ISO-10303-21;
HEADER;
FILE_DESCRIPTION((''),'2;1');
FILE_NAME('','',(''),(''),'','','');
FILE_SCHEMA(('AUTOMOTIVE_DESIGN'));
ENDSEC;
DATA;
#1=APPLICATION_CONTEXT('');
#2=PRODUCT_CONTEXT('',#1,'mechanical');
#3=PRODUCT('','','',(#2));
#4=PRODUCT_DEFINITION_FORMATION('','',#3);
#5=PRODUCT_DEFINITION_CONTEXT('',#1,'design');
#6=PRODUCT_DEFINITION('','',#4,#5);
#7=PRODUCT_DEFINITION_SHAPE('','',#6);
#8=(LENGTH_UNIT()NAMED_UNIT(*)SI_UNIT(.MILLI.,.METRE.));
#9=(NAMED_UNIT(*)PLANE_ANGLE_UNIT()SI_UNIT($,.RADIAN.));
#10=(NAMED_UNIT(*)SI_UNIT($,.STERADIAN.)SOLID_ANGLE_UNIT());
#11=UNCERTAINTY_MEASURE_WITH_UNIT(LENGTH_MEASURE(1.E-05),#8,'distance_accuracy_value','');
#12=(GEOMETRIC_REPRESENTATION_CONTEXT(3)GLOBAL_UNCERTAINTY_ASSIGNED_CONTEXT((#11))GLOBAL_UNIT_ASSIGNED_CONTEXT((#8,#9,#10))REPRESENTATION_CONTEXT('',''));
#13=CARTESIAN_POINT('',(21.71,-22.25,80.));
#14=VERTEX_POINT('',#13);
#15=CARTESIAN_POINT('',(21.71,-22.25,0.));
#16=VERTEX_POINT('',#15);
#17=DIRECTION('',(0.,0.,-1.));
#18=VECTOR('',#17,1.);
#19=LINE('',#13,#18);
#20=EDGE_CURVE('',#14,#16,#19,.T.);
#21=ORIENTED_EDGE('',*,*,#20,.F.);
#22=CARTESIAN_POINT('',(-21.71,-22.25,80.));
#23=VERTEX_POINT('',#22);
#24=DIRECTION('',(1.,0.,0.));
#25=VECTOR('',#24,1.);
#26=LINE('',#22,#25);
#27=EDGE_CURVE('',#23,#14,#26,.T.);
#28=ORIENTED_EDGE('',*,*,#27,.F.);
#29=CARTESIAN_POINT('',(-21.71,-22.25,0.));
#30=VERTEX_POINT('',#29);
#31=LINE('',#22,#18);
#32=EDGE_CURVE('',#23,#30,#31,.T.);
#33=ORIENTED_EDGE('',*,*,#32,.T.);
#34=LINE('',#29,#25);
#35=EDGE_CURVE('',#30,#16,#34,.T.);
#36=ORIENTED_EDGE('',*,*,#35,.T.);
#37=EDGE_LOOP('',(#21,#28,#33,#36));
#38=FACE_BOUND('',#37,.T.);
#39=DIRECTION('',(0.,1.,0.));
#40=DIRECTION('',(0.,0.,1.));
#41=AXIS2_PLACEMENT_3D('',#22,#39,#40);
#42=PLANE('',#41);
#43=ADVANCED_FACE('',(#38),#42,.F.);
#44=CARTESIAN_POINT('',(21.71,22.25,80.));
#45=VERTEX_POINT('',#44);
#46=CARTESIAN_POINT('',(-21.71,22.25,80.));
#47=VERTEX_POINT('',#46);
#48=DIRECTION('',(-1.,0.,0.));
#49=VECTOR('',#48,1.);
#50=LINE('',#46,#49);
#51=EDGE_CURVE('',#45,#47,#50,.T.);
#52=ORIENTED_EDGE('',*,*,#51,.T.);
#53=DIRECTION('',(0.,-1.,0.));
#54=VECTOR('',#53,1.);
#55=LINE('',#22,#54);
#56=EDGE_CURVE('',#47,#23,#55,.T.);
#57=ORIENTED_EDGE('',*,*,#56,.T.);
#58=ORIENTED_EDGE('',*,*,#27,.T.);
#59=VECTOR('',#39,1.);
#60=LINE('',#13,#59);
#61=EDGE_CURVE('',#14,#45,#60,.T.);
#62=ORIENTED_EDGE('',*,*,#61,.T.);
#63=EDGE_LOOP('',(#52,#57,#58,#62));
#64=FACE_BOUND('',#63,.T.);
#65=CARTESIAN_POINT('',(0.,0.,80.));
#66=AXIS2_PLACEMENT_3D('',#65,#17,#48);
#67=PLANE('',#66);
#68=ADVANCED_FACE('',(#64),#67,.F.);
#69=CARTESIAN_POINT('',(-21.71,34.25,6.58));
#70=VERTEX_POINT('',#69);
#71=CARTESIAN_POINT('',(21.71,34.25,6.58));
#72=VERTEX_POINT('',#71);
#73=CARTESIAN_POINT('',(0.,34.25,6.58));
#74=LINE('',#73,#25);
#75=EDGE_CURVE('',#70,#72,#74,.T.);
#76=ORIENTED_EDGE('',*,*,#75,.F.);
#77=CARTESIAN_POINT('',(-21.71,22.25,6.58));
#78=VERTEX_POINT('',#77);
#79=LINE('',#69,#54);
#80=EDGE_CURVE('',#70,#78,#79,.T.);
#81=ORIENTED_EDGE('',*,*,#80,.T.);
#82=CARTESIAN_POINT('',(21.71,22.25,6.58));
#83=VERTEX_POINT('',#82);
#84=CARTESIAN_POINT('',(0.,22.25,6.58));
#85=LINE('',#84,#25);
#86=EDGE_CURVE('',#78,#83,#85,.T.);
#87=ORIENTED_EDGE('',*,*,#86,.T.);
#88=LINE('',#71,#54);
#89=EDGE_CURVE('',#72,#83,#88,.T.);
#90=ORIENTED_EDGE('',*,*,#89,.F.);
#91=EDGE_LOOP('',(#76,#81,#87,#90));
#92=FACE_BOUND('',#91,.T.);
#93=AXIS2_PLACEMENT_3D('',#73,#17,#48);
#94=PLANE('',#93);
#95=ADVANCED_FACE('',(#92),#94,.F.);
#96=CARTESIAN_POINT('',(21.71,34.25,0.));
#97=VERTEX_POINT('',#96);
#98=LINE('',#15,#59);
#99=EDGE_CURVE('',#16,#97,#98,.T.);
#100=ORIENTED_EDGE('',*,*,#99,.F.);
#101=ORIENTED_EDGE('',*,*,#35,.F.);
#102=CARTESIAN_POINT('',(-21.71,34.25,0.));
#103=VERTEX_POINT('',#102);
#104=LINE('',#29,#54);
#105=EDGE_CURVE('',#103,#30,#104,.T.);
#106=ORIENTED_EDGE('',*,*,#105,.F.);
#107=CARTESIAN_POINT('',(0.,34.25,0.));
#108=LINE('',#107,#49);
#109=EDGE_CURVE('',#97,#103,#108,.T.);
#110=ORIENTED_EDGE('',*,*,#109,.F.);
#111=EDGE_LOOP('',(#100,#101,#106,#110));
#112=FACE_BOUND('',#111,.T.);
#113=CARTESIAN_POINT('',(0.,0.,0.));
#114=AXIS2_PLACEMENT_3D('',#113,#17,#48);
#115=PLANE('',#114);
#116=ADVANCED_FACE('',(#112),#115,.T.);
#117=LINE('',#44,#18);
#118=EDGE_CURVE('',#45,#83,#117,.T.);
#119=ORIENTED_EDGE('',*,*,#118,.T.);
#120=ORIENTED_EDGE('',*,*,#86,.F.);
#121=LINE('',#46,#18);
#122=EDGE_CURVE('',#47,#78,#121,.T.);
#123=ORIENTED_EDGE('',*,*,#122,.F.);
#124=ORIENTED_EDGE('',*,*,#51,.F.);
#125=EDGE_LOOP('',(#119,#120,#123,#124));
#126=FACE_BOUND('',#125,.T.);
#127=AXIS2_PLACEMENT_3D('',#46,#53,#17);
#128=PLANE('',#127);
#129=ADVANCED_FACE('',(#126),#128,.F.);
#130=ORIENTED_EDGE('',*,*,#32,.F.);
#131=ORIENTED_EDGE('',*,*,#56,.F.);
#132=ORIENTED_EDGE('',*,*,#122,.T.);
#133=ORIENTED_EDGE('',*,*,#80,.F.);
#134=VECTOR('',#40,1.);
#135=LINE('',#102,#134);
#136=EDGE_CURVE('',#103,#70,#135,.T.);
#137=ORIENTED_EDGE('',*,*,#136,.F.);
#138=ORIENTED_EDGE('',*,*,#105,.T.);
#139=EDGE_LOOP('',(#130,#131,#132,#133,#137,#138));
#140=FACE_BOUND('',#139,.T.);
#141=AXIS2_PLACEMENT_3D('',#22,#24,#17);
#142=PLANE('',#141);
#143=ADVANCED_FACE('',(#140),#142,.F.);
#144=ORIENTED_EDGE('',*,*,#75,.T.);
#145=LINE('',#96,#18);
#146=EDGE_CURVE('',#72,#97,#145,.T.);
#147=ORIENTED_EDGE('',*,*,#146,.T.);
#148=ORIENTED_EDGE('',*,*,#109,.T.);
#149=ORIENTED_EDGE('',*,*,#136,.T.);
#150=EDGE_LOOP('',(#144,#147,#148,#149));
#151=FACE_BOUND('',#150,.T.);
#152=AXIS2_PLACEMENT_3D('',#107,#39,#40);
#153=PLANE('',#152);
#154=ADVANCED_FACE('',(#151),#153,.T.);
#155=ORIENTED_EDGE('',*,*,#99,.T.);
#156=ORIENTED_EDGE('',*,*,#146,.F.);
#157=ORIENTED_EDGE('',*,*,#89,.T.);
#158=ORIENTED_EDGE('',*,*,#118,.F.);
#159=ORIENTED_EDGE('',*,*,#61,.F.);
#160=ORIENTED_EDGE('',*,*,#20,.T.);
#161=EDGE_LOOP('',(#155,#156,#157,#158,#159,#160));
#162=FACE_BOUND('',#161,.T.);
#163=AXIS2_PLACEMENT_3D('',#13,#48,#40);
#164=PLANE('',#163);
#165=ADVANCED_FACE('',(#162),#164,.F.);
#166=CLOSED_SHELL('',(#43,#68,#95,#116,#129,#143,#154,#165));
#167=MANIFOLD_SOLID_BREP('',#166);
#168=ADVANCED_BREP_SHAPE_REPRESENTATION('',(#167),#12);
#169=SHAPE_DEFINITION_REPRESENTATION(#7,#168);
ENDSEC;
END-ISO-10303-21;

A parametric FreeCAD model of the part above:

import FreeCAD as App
import Part
import Sketcher

V = App.Vector
Q = App.Units.Quantity

doc = App.newDocument("Part")
body = doc.addObject("PartDesign::Body", "Body")

# Sketch on XY plane
sketch1 = body.newObject("Sketcher::SketchObject", "Sketch")
sketch1.AttachmentSupport = (doc.getObject("XY_Plane"), [""])
sketch1.MapMode = "FlatFace"
sketch1.addGeometry([
    Part.LineSegment(V(-21.71, 22.25, 0), V(-21.71, -22.25, 0)),
    Part.LineSegment(V(-21.71, -22.25, 0), V(21.71, -22.25, 0)),
    Part.LineSegment(V(21.71, -22.25, 0), V(21.71, 22.25, 0)),
    Part.LineSegment(V(21.71, 22.25, 0), V(-21.71, 22.25, 0)),
], False)
sketch1.addConstraint([
    Sketcher.Constraint("Coincident", 0, 2, 1, 1),
    Sketcher.Constraint("Coincident", 1, 2, 2, 1),
    Sketcher.Constraint("Coincident", 2, 2, 3, 1),
    Sketcher.Constraint("Coincident", 3, 2, 0, 1),
    Sketcher.Constraint("Vertical", 0),
    Sketcher.Constraint("Horizontal", 1),
    Sketcher.Constraint("Vertical", 2),
    Sketcher.Constraint("Horizontal", 3),
    Sketcher.Constraint("Symmetric", 0, 2, 2, 2, -1, 1),
    Sketcher.Constraint("DistanceY", 0, 2, 0, 1, Q("44.5 mm")),
    Sketcher.Constraint("DistanceX", 1, 1, 1, 2, Q("43.42 mm")),
])
pad1 = body.newObject("PartDesign::Pad", "Pad")
pad1.Profile = sketch1
pad1.Length = 80

# Sketch on XZ plane
sketch2 = body.newObject("Sketcher::SketchObject", "Sketch001")
sketch2.AttachmentSupport = (doc.getObject("XZ_Plane"), [""])
sketch2.MapMode = "FlatFace"
sketch2.AttachmentOffset = App.Placement(V(0, 0, -22.25), App.Rotation())
sketch2.addGeometry([
    Part.LineSegment(V(-21.71, 0, 0), V(-21.71, 6.58, 0)),
    Part.LineSegment(V(-21.71, 6.58, 0), V(21.71, 6.58, 0)),
    Part.LineSegment(V(21.71, 6.58, 0), V(21.71, 0, 0)),
    Part.LineSegment(V(21.71, 0, 0), V(-21.71, 0, 0)),
], False)
sketch2.addConstraint([
    Sketcher.Constraint("Coincident", 0, 2, 1, 1),
    Sketcher.Constraint("Coincident", 1, 2, 2, 1),
    Sketcher.Constraint("Coincident", 2, 2, 3, 1),
    Sketcher.Constraint("Coincident", 3, 2, 0, 1),
    Sketcher.Constraint("Vertical", 0),
    Sketcher.Constraint("Horizontal", 1),
    Sketcher.Constraint("Vertical", 2),
    Sketcher.Constraint("Horizontal", 3),
    Sketcher.Constraint("Symmetric", 2, 2, 3, 2, -1, 1),
    Sketcher.Constraint("DistanceX", 1, 1, 1, 2, Q("43.42 mm")),
    Sketcher.Constraint("DistanceY", 0, 1, 0, 2, Q("6.58 mm")),
])
pad2 = body.newObject("PartDesign::Pad", "Pad001")
pad2.Profile = sketch2
pad2.Length = 12
pad2.Reversed = True

doc.recompute()
